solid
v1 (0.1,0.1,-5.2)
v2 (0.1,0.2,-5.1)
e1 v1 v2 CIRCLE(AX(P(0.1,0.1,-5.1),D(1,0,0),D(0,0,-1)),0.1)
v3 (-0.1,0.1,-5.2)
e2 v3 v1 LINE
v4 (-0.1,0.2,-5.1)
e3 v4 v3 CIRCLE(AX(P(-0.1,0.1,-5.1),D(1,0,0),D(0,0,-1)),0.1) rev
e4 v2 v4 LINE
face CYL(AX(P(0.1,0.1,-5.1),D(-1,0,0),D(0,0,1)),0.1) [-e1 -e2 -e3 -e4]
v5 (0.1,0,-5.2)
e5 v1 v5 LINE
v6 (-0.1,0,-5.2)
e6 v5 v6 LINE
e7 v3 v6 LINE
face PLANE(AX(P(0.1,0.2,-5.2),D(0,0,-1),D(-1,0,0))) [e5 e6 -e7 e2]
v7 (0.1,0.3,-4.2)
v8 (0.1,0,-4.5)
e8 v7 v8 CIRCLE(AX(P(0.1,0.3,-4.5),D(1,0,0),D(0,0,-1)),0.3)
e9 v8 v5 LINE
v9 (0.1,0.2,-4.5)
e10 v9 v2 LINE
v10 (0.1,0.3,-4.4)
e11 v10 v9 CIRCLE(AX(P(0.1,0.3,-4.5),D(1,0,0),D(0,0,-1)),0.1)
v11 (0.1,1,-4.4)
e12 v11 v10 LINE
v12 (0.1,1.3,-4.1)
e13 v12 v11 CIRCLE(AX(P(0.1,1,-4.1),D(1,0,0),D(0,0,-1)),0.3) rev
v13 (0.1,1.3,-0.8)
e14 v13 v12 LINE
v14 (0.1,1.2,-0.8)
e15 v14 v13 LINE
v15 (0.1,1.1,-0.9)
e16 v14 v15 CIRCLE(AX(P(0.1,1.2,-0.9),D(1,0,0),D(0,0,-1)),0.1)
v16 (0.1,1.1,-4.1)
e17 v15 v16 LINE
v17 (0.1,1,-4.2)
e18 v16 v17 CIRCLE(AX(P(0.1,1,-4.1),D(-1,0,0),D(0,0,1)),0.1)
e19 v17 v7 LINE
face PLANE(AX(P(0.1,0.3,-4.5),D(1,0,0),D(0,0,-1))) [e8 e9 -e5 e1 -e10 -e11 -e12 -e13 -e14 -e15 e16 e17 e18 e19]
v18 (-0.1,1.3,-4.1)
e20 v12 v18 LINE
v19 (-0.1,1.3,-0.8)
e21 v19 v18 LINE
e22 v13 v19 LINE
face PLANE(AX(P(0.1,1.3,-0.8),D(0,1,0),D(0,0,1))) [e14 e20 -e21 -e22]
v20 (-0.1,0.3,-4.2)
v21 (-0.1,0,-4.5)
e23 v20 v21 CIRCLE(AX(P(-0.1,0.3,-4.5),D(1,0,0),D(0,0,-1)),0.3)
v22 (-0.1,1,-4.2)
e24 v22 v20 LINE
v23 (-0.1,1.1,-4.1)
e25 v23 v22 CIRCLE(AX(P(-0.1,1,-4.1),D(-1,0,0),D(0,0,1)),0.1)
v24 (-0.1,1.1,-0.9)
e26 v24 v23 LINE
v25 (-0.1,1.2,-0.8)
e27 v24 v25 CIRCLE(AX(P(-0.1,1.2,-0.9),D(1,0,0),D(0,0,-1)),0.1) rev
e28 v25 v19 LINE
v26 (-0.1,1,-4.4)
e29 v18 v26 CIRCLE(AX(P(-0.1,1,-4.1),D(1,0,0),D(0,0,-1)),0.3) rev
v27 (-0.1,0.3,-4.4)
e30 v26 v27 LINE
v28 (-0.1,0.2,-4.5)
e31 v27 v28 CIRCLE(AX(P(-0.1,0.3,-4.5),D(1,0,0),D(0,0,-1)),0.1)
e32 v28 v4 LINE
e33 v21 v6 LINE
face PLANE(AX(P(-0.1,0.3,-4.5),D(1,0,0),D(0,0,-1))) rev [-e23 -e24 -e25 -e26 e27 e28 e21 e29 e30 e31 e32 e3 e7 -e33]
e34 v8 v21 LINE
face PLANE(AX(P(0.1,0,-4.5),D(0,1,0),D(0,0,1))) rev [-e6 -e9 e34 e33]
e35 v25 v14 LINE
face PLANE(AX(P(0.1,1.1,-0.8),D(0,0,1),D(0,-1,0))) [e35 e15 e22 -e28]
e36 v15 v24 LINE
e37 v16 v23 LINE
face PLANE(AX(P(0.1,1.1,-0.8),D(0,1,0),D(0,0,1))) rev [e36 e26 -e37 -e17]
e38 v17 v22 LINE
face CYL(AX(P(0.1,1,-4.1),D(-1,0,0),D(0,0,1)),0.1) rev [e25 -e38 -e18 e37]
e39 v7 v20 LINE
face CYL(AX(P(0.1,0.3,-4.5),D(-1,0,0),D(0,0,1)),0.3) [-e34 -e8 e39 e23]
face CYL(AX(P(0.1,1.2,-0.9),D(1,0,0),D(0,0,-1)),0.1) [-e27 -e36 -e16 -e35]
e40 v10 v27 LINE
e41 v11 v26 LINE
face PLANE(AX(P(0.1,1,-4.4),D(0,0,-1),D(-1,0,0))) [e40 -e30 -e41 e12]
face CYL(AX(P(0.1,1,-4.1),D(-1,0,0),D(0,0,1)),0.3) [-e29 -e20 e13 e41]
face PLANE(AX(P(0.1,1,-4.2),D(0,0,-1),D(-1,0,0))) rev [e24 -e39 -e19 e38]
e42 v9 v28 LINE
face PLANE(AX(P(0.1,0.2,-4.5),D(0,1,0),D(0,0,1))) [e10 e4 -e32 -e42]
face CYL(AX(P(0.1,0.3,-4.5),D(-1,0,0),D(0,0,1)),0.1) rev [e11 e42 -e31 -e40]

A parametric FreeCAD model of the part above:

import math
import FreeCAD as App
import Part
import Sketcher
from FreeCAD import Vector


def edges_at(feature, points):
    """Names of the edges that pass closest to the given points."""
    edges = feature.Shape.Edges
    near = lambda p: min(range(len(edges)), key=lambda i: edges[i].distToShape(Part.Vertex(*p))[0])
    return sorted({f"Edge{near(p) + 1}" for p in points})

doc = App.newDocument("Part")
params = doc.addObject("Spreadsheet::Sheet", "Params")
for row, (alias, value) in enumerate([
    ("sketch1_radius", "0.1 mm"),
    ("sketch1_radius2", "0.3 mm"),
    ("sketch1_width", "0.7 mm"),
    ("sketch1_height", "3.3 mm"),
    ("pad1_length", "0.2 mm"),
    ("fillet_radius", "0.1 mm"),
], start=1):
    params.set(f"A{row}", alias)
    params.set(f"B{row}", "=" + value)
    params.setAlias(f"B{row}", alias)

body = doc.addObject("PartDesign::Body", "Body")

sketch1 = body.newObject("Sketcher::SketchObject", "Sketch")
sketch1.AttachmentSupport = (doc.getObject("YZ_Plane"), [""])
sketch1.MapMode = "FlatFace"
sketch1.addGeometry([
    Part.LineSegment(Vector(1.1, -0.8, 0), Vector(1.1, -4.1, 0)),
    Part.ArcOfCircle(Part.Circle(Vector(1, -4.1, 0), Vector(0, 0, 1), 0.1), math.radians(-90), math.radians(0)),
    Part.LineSegment(Vector(1, -4.2, 0), Vector(0.3, -4.2, 0)),
    Part.ArcOfCircle(Part.Circle(Vector(0.3, -4.5, 0), Vector(0, 0, 1), 0.3), math.radians(90), math.radians(180)),
    Part.LineSegment(Vector(0, -4.5, 0), Vector(0, -5.2, 0)),
    Part.LineSegment(Vector(0, -5.2, 0), Vector(0.2, -5.2, 0)),
    Part.LineSegment(Vector(0.2, -5.2, 0), Vector(0.2, -4.5, 0)),
    Part.ArcOfCircle(Part.Circle(Vector(0.3, -4.5, 0), Vector(0, 0, 1), 0.1), math.radians(90), math.radians(180)),
    Part.LineSegment(Vector(0.3, -4.4, 0), Vector(1, -4.4, 0)),
    Part.ArcOfCircle(Part.Circle(Vector(1, -4.1, 0), Vector(0, 0, 1), 0.3), math.radians(-90), math.radians(0)),
    Part.LineSegment(Vector(1.3, -4.1, 0), Vector(1.3, -0.8, 0)),
    Part.LineSegment(Vector(1.3, -0.8, 0), Vector(1.1, -0.8, 0)),
], False)
sketch1.addConstraint([
    Sketcher.Constraint("Tangent", 0, 2, 1, 2),
    Sketcher.Constraint("Tangent", 1, 1, 2, 1),
    Sketcher.Constraint("Tangent", 2, 2, 3, 1),
    Sketcher.Constraint("Tangent", 3, 2, 4, 1),
    Sketcher.Constraint("Coincident", 4, 2, 5, 1),
    Sketcher.Constraint("Coincident", 5, 2, 6, 1),
    Sketcher.Constraint("Tangent", 6, 2, 7, 2),
    Sketcher.Constraint("Tangent", 7, 1, 8, 1),
    Sketcher.Constraint("Tangent", 8, 2, 9, 1),
    Sketcher.Constraint("Tangent", 9, 2, 10, 1),
    Sketcher.Constraint("Coincident", 10, 2, 11, 1),
    Sketcher.Constraint("Coincident", 11, 2, 0, 1),
    Sketcher.Constraint("Vertical", 0),
    Sketcher.Constraint("Horizontal", 2),
    Sketcher.Constraint("Vertical", 4),
    Sketcher.Constraint("Horizontal", 5),
    Sketcher.Constraint("Vertical", 6),
    Sketcher.Constraint("Horizontal", 8),
    Sketcher.Constraint("Vertical", 10),
    Sketcher.Constraint("Horizontal", 11),
    Sketcher.Constraint("Coincident", 7, 3, 3, 3),
    Sketcher.Constraint("Coincident", 9, 3, 1, 3),
    Sketcher.Constraint("Equal", 1, 7),
    Sketcher.Constraint("PointOnObject", 3, 2, -2),
    Sketcher.Constraint("Equal", 8, 4),
    Sketcher.Constraint("Radius", 1, 0.1),
    Sketcher.Constraint("Radius", 3, 0.3),
    Sketcher.Constraint("DistanceX", 2, 2, 2, 1, 0.7),
    Sketcher.Constraint("DistanceY", 0, 2, 0, 1, 3.3),
    Sketcher.Constraint("DistanceY", 1, 3, -1, 1, 4.1),
])
sketch1.setExpression("Constraints[25]", "Params.sketch1_radius")
sketch1.setExpression("Constraints[26]", "Params.sketch1_radius2")
sketch1.setExpression("Constraints[27]", "Params.sketch1_width")
sketch1.setExpression("Constraints[28]", "Params.sketch1_height")
pad1 = body.newObject("PartDesign::Pad", "Pad")
pad1.Profile = sketch1
pad1.setExpression("Length", "Params.pad1_length")
pad1.Midplane = True
doc.recompute()

fillet = body.newObject("PartDesign::Fillet", "Fillet")
fillet.Base = (pad1, edges_at(pad1, [(0, 1.1, -0.8), (0, 0.2, -5.2)]))
fillet.setExpression("Radius", "Params.fillet_radius")

doc.recompute()
